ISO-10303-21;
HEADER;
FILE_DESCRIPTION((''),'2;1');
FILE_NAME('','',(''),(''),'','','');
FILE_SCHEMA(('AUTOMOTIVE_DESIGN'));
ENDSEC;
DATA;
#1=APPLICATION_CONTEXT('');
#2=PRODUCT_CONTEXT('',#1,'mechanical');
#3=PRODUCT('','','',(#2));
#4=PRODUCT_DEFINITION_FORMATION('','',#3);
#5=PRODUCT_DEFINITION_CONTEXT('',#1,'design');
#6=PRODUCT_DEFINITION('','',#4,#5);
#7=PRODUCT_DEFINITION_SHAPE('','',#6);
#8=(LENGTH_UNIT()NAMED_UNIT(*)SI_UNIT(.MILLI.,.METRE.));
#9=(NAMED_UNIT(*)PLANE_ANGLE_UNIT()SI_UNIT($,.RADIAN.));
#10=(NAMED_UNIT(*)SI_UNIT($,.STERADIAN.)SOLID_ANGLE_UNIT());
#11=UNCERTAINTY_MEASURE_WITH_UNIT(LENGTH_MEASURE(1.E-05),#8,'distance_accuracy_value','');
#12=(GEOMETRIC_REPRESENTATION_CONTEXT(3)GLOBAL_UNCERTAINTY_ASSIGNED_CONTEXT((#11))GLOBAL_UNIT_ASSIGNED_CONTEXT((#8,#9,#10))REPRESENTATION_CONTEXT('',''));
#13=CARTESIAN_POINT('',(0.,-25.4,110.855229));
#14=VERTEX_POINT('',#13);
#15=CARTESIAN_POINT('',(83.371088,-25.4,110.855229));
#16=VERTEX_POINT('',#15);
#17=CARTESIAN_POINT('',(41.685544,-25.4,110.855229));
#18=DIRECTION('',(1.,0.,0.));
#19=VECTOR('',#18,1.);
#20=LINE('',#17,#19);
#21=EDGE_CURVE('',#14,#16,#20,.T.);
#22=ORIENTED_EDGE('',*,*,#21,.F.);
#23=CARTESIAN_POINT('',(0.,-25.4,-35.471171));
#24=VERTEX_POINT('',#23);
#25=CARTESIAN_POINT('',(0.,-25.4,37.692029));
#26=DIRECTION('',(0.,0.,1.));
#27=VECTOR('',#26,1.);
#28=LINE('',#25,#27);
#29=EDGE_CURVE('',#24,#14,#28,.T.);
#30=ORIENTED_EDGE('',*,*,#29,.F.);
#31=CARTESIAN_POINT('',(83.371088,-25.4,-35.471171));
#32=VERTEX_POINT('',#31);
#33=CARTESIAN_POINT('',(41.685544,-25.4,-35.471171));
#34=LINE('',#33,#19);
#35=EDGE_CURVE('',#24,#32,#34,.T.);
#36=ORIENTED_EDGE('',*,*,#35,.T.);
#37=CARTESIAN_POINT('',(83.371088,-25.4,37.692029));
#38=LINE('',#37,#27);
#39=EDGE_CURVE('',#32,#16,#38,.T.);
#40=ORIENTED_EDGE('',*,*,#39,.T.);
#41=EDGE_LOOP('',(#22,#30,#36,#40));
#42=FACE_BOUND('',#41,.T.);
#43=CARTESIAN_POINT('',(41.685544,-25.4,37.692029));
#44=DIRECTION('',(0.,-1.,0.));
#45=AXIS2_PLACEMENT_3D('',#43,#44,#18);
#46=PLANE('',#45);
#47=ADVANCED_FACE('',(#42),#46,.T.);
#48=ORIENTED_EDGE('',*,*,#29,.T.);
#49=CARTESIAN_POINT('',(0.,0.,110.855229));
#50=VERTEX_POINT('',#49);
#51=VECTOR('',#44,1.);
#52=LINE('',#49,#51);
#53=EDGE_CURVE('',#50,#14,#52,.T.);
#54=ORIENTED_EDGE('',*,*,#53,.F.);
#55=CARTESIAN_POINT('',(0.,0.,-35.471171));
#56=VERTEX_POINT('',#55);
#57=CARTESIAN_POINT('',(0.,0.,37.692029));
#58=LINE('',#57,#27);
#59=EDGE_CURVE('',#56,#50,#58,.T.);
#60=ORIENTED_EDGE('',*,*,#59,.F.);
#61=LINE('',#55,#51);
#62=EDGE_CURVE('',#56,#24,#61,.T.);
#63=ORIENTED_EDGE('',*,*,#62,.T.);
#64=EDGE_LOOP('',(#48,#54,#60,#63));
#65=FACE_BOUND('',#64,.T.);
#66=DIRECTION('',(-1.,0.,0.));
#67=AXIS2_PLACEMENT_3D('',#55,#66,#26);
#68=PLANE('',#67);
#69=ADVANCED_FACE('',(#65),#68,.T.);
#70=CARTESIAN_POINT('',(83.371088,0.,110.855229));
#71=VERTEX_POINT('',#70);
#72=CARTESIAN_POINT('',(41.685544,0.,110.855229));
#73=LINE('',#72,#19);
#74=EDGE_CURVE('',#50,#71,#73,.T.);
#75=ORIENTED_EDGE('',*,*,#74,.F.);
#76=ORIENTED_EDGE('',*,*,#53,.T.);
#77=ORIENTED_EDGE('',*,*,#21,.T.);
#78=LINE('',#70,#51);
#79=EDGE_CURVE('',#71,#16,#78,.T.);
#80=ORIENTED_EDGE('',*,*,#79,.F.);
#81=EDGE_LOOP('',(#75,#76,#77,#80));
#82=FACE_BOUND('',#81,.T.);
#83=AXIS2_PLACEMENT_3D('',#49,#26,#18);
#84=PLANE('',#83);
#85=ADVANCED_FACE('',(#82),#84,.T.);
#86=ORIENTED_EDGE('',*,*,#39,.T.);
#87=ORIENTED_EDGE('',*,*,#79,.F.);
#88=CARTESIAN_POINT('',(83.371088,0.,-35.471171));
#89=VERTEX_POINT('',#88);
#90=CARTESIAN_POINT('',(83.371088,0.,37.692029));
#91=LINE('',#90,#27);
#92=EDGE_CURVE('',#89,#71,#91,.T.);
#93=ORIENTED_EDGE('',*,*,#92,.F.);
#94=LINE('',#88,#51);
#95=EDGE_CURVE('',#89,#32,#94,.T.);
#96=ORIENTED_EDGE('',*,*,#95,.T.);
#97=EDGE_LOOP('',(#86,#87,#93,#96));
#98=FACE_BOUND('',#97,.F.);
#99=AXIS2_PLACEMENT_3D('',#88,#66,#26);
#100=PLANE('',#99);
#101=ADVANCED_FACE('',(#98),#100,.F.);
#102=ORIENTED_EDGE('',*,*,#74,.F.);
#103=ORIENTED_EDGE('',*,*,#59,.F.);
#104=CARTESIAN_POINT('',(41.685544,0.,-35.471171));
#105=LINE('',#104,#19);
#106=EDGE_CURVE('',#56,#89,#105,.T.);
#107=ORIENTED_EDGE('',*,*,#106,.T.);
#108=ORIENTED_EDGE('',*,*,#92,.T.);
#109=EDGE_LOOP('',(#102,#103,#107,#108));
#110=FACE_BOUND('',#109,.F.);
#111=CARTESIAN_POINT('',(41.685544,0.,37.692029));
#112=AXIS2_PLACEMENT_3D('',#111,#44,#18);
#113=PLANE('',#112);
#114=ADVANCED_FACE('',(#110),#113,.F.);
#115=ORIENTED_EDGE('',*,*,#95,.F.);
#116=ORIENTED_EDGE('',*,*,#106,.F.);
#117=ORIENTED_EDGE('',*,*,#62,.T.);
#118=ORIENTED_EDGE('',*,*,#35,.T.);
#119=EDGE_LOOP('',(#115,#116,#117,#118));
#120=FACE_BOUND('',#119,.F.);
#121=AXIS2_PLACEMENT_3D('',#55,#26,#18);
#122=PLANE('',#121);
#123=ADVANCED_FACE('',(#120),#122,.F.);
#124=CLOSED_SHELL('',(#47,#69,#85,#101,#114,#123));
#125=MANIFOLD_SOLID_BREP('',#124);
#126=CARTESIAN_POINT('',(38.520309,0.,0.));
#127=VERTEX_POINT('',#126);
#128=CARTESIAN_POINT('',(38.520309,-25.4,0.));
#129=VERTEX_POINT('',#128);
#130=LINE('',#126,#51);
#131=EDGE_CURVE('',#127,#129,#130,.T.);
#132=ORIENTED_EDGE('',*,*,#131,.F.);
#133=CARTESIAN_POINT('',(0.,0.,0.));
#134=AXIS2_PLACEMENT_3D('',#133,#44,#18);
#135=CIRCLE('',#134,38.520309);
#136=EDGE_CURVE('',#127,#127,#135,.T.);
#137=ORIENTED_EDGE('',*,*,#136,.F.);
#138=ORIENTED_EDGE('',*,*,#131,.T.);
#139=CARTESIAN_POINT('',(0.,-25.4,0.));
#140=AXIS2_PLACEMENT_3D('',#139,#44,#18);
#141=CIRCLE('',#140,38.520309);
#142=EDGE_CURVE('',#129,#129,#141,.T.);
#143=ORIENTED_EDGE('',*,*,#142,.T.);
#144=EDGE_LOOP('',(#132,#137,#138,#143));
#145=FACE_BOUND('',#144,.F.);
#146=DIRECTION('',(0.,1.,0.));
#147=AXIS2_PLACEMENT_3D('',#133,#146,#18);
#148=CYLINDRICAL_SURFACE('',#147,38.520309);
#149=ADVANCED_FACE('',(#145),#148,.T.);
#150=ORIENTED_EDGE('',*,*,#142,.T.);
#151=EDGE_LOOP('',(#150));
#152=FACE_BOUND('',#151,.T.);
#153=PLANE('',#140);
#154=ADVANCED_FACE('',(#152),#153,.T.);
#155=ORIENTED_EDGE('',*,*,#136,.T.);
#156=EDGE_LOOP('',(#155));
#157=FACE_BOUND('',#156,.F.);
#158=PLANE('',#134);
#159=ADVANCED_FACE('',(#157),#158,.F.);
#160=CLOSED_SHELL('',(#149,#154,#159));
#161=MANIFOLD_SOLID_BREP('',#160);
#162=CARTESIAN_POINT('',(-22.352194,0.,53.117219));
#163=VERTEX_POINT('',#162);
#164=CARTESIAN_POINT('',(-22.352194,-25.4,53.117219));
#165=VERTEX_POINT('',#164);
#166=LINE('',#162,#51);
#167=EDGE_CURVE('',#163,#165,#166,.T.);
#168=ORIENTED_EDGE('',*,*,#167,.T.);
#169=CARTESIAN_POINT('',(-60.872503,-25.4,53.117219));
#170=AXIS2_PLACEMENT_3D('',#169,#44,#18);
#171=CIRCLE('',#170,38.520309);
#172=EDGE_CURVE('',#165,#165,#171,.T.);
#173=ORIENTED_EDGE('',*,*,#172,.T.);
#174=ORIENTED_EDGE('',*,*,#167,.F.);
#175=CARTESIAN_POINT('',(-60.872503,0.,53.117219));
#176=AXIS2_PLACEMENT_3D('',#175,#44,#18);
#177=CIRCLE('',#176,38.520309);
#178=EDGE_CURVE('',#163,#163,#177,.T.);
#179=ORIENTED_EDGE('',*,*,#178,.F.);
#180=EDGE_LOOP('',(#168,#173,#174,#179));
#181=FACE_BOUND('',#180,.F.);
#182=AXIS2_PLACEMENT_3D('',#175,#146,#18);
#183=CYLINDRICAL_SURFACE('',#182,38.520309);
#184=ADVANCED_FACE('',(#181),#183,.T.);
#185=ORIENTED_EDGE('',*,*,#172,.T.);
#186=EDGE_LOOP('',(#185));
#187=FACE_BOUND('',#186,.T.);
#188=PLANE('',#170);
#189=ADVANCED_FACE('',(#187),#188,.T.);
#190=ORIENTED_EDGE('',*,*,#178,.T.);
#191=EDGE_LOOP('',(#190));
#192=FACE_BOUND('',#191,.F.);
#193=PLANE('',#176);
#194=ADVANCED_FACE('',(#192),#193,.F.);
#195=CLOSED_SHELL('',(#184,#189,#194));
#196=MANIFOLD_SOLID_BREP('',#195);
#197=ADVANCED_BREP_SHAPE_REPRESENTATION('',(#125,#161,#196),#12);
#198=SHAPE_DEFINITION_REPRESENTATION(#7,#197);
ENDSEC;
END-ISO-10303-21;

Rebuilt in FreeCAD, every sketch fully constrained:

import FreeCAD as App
import Part
import Sketcher
Q = App.Units.Quantity

doc = App.newDocument("Part")
body = doc.addObject("PartDesign::Body", "Body")
body.AllowCompound = True

sketch1 = body.newObject("Sketcher::SketchObject", "Sketch")
sketch1.AttachmentSupport = (doc.getObject("XZ_Plane"), [""])
sketch1.MapMode = "FlatFace"
sketch1.addGeometry([
    Part.Circle(App.Vector(-61, 53, 0), App.Vector(0, 0, 1), 39),
    Part.Circle(App.Vector(0, 0, 0), App.Vector(0, 0, 1), 39),
], False)
sketch1.addConstraint([
    Sketcher.Constraint("Coincident", 1, 3, -1, 1),
    Sketcher.Constraint("Equal", 0, 1),
    Sketcher.Constraint("Diameter", 0, 77.040618),
    Sketcher.Constraint("DistanceY", -1, 1, 0, 3, 53.117219),
    Sketcher.Constraint("DistanceX", 0, 3, -1, 1, 60.872503),
])
pad1 = body.newObject("PartDesign::Pad", "Pad")
pad1.Profile = sketch1
pad1.Length = Q("1 in")
body2 = doc.addObject("PartDesign::Body", "Body001")

sketch2 = body2.newObject("Sketcher::SketchObject", "Sketch001")
sketch2.AttachmentSupport = (doc.getObject("XZ_Plane001"), [""])
sketch2.MapMode = "FlatFace"
sketch2.addGeometry([
    Part.LineSegment(App.Vector(0, 111, 0), App.Vector(0, -35, 0)),
    Part.LineSegment(App.Vector(0, -35, 0), App.Vector(83, -35, 0)),
    Part.LineSegment(App.Vector(83, -35, 0), App.Vector(83, 111, 0)),
    Part.LineSegment(App.Vector(83, 111, 0), App.Vector(0, 111, 0)),
], False)
sketch2.addConstraint([
    Sketcher.Constraint("Coincident", 0, 2, 1, 1),
    Sketcher.Constraint("Coincident", 1, 2, 2, 1),
    Sketcher.Constraint("Coincident", 2, 2, 3, 1),
    Sketcher.Constraint("Coincident", 3, 2, 0, 1),
    Sketcher.Constraint("Vertical", 0),
    Sketcher.Constraint("Horizontal", 1),
    Sketcher.Constraint("Vertical", 2),
    Sketcher.Constraint("Horizontal", 3),
    Sketcher.Constraint("PointOnObject", 0, 2, -2),
    Sketcher.Constraint("DistanceY", 0, 2, 0, 1, 146.3264),
    Sketcher.Constraint("DistanceX", 1, 1, 1, 2, 83.371088),
    Sketcher.Constraint("DistanceY", 0, 2, -1, 1, 35.471171),
])
pad2 = body2.newObject("PartDesign::Pad", "Pad001")
pad2.Profile = sketch2
pad2.Length = Q("1 in")

doc.recompute()
